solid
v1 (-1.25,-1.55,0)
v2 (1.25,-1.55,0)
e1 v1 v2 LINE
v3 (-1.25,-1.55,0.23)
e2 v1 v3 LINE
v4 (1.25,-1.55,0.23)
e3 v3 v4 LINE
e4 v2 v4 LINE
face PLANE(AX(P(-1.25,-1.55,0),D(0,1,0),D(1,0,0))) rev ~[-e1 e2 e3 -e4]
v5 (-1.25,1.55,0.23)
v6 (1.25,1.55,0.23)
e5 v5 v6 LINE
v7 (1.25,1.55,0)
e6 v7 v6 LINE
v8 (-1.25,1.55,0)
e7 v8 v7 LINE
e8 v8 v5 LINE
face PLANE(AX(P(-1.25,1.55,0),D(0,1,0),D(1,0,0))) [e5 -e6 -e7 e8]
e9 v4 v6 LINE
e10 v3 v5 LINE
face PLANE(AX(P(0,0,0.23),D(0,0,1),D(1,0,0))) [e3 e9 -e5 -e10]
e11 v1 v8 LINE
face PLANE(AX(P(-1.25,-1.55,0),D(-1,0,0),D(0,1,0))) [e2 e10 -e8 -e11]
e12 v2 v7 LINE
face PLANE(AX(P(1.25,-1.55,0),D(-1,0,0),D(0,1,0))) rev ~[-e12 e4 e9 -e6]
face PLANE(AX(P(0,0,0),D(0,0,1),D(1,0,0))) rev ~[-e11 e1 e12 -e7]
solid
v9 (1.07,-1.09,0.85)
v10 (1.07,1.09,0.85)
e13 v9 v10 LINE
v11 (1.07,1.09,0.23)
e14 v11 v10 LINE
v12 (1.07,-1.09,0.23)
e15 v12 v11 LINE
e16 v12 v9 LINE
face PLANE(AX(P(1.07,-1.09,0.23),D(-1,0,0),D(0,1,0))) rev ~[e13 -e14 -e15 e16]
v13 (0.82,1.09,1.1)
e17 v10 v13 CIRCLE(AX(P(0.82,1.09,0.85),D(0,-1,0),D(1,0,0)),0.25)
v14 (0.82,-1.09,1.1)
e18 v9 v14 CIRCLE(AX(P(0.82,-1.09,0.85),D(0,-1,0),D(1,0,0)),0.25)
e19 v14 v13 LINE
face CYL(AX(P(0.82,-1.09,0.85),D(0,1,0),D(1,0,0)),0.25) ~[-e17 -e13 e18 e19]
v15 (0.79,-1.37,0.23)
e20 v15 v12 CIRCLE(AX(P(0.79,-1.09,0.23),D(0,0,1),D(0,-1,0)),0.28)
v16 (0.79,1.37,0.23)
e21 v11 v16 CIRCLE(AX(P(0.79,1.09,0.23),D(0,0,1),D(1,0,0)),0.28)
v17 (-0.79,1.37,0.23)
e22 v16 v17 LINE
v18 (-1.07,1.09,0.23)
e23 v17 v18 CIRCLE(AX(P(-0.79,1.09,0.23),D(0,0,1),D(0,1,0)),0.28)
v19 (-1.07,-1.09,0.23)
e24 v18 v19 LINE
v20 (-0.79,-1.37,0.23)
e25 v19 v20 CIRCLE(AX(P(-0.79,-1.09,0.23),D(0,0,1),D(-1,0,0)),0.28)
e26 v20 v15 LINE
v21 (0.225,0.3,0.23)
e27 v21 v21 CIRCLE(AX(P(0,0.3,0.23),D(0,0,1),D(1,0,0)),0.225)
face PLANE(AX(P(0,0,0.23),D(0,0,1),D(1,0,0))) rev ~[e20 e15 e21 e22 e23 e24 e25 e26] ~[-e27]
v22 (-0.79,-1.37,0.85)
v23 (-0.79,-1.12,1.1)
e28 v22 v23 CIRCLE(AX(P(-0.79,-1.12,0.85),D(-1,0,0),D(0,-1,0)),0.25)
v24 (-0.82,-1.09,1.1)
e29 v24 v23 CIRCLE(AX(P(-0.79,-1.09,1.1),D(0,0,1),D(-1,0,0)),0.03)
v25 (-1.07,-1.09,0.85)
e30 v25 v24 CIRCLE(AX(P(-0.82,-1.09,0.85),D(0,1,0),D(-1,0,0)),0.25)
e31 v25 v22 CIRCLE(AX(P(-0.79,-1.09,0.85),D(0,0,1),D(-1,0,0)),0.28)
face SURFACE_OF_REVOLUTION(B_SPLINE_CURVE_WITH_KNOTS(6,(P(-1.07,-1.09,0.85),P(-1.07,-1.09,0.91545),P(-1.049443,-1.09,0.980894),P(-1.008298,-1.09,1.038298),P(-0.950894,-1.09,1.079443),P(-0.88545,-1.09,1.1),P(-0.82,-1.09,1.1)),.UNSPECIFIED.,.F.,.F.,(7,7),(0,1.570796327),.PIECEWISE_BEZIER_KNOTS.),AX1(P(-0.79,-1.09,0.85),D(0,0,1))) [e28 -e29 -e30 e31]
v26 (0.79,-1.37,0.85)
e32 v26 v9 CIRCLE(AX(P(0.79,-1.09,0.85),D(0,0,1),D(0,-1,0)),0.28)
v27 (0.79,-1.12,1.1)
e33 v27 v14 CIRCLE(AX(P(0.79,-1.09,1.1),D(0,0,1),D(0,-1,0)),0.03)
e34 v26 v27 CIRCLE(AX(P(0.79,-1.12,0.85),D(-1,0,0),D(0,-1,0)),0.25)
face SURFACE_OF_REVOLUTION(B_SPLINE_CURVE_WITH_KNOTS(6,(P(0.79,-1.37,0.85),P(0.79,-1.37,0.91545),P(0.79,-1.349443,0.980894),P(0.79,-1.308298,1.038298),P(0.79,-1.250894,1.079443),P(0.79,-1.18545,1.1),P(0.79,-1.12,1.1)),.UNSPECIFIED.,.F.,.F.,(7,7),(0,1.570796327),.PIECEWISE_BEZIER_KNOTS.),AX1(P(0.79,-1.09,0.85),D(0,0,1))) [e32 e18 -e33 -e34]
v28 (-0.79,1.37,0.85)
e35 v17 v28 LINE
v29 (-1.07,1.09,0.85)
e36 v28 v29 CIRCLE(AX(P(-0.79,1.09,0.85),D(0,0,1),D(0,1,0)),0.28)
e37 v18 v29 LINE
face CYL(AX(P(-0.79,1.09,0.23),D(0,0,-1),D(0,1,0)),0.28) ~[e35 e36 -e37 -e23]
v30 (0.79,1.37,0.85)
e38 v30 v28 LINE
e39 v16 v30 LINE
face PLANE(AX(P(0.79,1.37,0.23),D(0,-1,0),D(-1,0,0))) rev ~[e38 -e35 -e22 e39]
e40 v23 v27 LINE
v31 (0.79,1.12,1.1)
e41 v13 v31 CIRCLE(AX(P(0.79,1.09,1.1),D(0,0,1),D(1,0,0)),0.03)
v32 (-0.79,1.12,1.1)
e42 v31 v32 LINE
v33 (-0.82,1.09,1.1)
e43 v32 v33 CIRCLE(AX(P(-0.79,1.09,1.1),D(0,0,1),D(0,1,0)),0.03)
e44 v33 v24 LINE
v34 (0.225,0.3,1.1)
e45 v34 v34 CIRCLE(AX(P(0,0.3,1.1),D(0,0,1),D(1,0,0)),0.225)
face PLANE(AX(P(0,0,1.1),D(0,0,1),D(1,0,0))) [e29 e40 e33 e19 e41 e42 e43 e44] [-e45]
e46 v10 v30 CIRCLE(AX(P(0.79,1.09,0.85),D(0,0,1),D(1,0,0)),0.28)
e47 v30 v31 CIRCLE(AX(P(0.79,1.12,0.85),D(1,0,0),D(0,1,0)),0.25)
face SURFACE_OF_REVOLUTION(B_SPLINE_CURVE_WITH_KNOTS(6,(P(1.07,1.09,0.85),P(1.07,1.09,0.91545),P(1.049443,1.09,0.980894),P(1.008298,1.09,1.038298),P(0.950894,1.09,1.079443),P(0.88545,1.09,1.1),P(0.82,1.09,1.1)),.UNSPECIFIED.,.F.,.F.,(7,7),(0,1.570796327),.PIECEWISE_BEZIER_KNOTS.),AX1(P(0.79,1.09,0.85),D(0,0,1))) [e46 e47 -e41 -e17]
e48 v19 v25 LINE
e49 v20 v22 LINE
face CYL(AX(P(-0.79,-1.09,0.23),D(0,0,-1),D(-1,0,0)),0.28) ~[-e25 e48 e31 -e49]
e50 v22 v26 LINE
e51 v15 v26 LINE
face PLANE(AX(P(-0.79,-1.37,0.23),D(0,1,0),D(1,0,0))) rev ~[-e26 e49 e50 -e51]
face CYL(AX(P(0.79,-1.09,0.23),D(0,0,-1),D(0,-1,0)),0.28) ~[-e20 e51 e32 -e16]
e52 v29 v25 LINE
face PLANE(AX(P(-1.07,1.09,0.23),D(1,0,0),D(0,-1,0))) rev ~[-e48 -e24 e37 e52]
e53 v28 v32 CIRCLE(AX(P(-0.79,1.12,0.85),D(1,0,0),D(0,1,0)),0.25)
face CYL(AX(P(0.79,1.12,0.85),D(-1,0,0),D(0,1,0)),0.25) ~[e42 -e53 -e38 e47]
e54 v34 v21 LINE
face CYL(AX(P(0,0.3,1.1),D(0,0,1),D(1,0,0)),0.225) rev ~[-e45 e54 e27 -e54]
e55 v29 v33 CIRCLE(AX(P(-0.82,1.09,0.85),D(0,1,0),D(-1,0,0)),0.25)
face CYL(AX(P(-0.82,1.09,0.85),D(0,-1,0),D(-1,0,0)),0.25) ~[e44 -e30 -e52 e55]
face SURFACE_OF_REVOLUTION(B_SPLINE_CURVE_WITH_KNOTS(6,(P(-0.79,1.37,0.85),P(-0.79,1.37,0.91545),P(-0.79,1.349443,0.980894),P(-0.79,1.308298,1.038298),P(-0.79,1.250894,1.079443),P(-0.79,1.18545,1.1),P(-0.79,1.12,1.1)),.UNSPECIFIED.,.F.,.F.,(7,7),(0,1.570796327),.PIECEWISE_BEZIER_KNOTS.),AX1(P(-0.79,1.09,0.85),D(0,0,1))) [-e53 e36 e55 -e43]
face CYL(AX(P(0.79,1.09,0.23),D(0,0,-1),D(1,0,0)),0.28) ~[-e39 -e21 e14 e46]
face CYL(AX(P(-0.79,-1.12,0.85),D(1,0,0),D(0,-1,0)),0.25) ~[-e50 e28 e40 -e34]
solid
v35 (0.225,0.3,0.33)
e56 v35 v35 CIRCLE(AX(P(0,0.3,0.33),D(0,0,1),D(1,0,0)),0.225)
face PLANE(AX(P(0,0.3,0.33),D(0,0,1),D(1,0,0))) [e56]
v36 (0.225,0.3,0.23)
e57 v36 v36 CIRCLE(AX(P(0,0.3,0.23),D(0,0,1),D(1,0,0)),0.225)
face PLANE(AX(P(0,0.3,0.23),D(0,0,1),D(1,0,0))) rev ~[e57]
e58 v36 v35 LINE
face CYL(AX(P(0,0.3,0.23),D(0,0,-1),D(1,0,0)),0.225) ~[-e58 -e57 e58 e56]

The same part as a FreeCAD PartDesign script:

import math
import FreeCAD as App
import Part
import Sketcher
Q = App.Units.Quantity


def edges_at(feature, points):
    """Names of the edges that pass closest to the given points."""
    edges = feature.Shape.Edges
    near = lambda p: min(range(len(edges)), key=lambda i: edges[i].distToShape(Part.Vertex(*p))[0])
    return sorted({f"Edge{near(p) + 1}" for p in points})

doc = App.newDocument("Part")
body = doc.addObject("PartDesign::Body", "Body")

# Sketch on XY plane
sketch1 = body.newObject("Sketcher::SketchObject", "Sketch")
sketch1.AttachmentSupport = (doc.getObject("XY_Plane"), [""])
sketch1.MapMode = "FlatFace"
sketch1.addGeometry(Part.LineSegment(App.Vector(-1.25, 1.55, 0), App.Vector(-1.25, -1.55, 0)), False)
sketch1.addGeometry(Part.LineSegment(App.Vector(-1.25, -1.55, 0), App.Vector(1.25, -1.55, 0)), False)
sketch1.addGeometry(Part.LineSegment(App.Vector(1.25, -1.55, 0), App.Vector(1.25, 1.55, 0)), False)
sketch1.addGeometry(Part.LineSegment(App.Vector(1.25, 1.55, 0), App.Vector(-1.25, 1.55, 0)), False)
sketch1.addConstraint(Sketcher.Constraint("Coincident", 0, 2, 1, 1))
sketch1.addConstraint(Sketcher.Constraint("Coincident", 1, 2, 2, 1))
sketch1.addConstraint(Sketcher.Constraint("Coincident", 2, 2, 3, 1))
sketch1.addConstraint(Sketcher.Constraint("Coincident", 3, 2, 0, 1))
sketch1.addConstraint(Sketcher.Constraint("Vertical", 0))
sketch1.addConstraint(Sketcher.Constraint("Horizontal", 1))
sketch1.addConstraint(Sketcher.Constraint("Vertical", 2))
sketch1.addConstraint(Sketcher.Constraint("Horizontal", 3))
sketch1.addConstraint(Sketcher.Constraint("Symmetric", 0, 2, 2, 2, -1, 1))
sketch1.addConstraint(Sketcher.Constraint("DistanceX", 1, 1, 1, 2, Q("2.5 mm")))
sketch1.addConstraint(Sketcher.Constraint("DistanceY", 0, 2, 0, 1, Q("3.1 mm")))
pad1 = body.newObject("PartDesign::Pad", "Pad")
pad1.Profile = sketch1
pad1.Length = 0.23
body2 = doc.addObject("PartDesign::Body", "Body001")

# Sketch on XY plane
sketch2 = body2.newObject("Sketcher::SketchObject", "Sketch001")
sketch2.AttachmentSupport = (doc.getObject("XY_Plane001"), [""])
sketch2.MapMode = "FlatFace"
sketch2.AttachmentOffset = App.Placement(App.Vector(0, 0, 0.23), App.Rotation())
sketch2.addGeometry(Part.LineSegment(App.Vector(-0.79, -1.37, 0), App.Vector(0.79, -1.37, 0)), False)
sketch2.addGeometry(Part.ArcOfCircle(Part.Circle(App.Vector(0.79, -1.09, 0), App.Vector(0, 0, 1), 0.28), math.radians(-90), math.radians(0)), False)
sketch2.addGeometry(Part.LineSegment(App.Vector(1.07, -1.09, 0), App.Vector(1.07, 1.09, 0)), False)
sketch2.addGeometry(Part.ArcOfCircle(Part.Circle(App.Vector(0.79, 1.09, 0), App.Vector(0, 0, 1), 0.28), math.radians(0), math.radians(90)), False)
sketch2.addGeometry(Part.LineSegment(App.Vector(0.79, 1.37, 0), App.Vector(-0.79, 1.37, 0)), False)
sketch2.addGeometry(Part.ArcOfCircle(Part.Circle(App.Vector(-0.79, 1.09, 0), App.Vector(0, 0, 1), 0.28), math.radians(90), math.radians(180)), False)
sketch2.addGeometry(Part.LineSegment(App.Vector(-1.07, 1.09, 0), App.Vector(-1.07, -1.09, 0)), False)
sketch2.addGeometry(Part.ArcOfCircle(Part.Circle(App.Vector(-0.79, -1.09, 0), App.Vector(0, 0, 1), 0.28), math.radians(180), math.radians(270)), False)
sketch2.addConstraint(Sketcher.Constraint("Tangent", 0, 2, 1, 1))
sketch2.addConstraint(Sketcher.Constraint("Tangent", 1, 2, 2, 1))
sketch2.addConstraint(Sketcher.Constraint("Tangent", 2, 2, 3, 1))
sketch2.addConstraint(Sketcher.Constraint("Tangent", 3, 2, 4, 1))
sketch2.addConstraint(Sketcher.Constraint("Tangent", 4, 2, 5, 1))
sketch2.addConstraint(Sketcher.Constraint("Tangent", 5, 2, 6, 1))
sketch2.addConstraint(Sketcher.Constraint("Tangent", 6, 2, 7, 1))
sketch2.addConstraint(Sketcher.Constraint("Tangent", 7, 2, 0, 1))
sketch2.addConstraint(Sketcher.Constraint("Horizontal", 0))
sketch2.addConstraint(Sketcher.Constraint("Vertical", 2))
sketch2.addConstraint(Sketcher.Constraint("Horizontal", 4))
sketch2.addConstraint(Sketcher.Constraint("Vertical", 6))
sketch2.addConstraint(Sketcher.Constraint("Equal", 1, 3))
sketch2.addConstraint(Sketcher.Constraint("Equal", 3, 5))
sketch2.addConstraint(Sketcher.Constraint("Equal", 5, 7))
sketch2.addConstraint(Sketcher.Constraint("Symmetric", 1, 3, 5, 3, -1, 1))
sketch2.addConstraint(Sketcher.Constraint("Radius", 1, Q("0.28 mm")))
sketch2.addConstraint(Sketcher.Constraint("DistanceX", 0, 1, 0, 2, Q("1.58 mm")))
sketch2.addConstraint(Sketcher.Constraint("DistanceY", 2, 1, 2, 2, Q("2.18 mm")))
pad2 = body2.newObject("PartDesign::Pad", "Pad001")
pad2.Profile = sketch2
pad2.Length = 0.87
doc.recompute()

fillet = body2.newObject("PartDesign::Fillet", "Fillet")
fillet.Base = (pad2, edges_at(pad2, [(0, -1.37, 1.1)]))
fillet.Radius = 0.25

# Sketch on XY plane
sketch3 = body2.newObject("Sketcher::SketchObject", "Sketch002")
sketch3.AttachmentSupport = (doc.getObject("XY_Plane001"), [""])
sketch3.MapMode = "FlatFace"
sketch3.AttachmentOffset = App.Placement(App.Vector(0, 0, 1.1), App.Rotation())
sketch3.addGeometry(Part.Circle(App.Vector(0, 0.3, 0), App.Vector(0, 0, 1), 0.225), False)
sketch3.addConstraint(Sketcher.Constraint("PointOnObject", 0, 3, -2))
sketch3.addConstraint(Sketcher.Constraint("Diameter", 0, Q("0.45 mm")))
sketch3.addConstraint(Sketcher.Constraint("DistanceY", -1, 1, 0, 3, Q("0.3 mm")))
pocket1 = body2.newObject("PartDesign::Pocket", "Pocket")
pocket1.Profile = sketch3
pocket1.Type = "ThroughAll"
body3 = doc.addObject("PartDesign::Body", "Body002")

# Sketch on XY plane
sketch4 = body3.newObject("Sketcher::SketchObject", "Sketch003")
sketch4.AttachmentSupport = (doc.getObject("XY_Plane002"), [""])
sketch4.MapMode = "FlatFace"
sketch4.AttachmentOffset = App.Placement(App.Vector(0, 0, 0.23), App.Rotation())
sketch4.addGeometry(Part.Circle(App.Vector(0, 0.3, 0), App.Vector(0, 0, 1), 0.225), False)
sketch4.addConstraint(Sketcher.Constraint("PointOnObject", 0, 3, -2))
sketch4.addConstraint(Sketcher.Constraint("Diameter", 0, Q("0.45 mm")))
sketch4.addConstraint(Sketcher.Constraint("DistanceY", -1, 1, 0, 3, Q("0.3 mm")))
pad3 = body3.newObject("PartDesign::Pad", "Pad002")
pad3.Profile = sketch4
pad3.Length = 0.1

doc.recompute()
